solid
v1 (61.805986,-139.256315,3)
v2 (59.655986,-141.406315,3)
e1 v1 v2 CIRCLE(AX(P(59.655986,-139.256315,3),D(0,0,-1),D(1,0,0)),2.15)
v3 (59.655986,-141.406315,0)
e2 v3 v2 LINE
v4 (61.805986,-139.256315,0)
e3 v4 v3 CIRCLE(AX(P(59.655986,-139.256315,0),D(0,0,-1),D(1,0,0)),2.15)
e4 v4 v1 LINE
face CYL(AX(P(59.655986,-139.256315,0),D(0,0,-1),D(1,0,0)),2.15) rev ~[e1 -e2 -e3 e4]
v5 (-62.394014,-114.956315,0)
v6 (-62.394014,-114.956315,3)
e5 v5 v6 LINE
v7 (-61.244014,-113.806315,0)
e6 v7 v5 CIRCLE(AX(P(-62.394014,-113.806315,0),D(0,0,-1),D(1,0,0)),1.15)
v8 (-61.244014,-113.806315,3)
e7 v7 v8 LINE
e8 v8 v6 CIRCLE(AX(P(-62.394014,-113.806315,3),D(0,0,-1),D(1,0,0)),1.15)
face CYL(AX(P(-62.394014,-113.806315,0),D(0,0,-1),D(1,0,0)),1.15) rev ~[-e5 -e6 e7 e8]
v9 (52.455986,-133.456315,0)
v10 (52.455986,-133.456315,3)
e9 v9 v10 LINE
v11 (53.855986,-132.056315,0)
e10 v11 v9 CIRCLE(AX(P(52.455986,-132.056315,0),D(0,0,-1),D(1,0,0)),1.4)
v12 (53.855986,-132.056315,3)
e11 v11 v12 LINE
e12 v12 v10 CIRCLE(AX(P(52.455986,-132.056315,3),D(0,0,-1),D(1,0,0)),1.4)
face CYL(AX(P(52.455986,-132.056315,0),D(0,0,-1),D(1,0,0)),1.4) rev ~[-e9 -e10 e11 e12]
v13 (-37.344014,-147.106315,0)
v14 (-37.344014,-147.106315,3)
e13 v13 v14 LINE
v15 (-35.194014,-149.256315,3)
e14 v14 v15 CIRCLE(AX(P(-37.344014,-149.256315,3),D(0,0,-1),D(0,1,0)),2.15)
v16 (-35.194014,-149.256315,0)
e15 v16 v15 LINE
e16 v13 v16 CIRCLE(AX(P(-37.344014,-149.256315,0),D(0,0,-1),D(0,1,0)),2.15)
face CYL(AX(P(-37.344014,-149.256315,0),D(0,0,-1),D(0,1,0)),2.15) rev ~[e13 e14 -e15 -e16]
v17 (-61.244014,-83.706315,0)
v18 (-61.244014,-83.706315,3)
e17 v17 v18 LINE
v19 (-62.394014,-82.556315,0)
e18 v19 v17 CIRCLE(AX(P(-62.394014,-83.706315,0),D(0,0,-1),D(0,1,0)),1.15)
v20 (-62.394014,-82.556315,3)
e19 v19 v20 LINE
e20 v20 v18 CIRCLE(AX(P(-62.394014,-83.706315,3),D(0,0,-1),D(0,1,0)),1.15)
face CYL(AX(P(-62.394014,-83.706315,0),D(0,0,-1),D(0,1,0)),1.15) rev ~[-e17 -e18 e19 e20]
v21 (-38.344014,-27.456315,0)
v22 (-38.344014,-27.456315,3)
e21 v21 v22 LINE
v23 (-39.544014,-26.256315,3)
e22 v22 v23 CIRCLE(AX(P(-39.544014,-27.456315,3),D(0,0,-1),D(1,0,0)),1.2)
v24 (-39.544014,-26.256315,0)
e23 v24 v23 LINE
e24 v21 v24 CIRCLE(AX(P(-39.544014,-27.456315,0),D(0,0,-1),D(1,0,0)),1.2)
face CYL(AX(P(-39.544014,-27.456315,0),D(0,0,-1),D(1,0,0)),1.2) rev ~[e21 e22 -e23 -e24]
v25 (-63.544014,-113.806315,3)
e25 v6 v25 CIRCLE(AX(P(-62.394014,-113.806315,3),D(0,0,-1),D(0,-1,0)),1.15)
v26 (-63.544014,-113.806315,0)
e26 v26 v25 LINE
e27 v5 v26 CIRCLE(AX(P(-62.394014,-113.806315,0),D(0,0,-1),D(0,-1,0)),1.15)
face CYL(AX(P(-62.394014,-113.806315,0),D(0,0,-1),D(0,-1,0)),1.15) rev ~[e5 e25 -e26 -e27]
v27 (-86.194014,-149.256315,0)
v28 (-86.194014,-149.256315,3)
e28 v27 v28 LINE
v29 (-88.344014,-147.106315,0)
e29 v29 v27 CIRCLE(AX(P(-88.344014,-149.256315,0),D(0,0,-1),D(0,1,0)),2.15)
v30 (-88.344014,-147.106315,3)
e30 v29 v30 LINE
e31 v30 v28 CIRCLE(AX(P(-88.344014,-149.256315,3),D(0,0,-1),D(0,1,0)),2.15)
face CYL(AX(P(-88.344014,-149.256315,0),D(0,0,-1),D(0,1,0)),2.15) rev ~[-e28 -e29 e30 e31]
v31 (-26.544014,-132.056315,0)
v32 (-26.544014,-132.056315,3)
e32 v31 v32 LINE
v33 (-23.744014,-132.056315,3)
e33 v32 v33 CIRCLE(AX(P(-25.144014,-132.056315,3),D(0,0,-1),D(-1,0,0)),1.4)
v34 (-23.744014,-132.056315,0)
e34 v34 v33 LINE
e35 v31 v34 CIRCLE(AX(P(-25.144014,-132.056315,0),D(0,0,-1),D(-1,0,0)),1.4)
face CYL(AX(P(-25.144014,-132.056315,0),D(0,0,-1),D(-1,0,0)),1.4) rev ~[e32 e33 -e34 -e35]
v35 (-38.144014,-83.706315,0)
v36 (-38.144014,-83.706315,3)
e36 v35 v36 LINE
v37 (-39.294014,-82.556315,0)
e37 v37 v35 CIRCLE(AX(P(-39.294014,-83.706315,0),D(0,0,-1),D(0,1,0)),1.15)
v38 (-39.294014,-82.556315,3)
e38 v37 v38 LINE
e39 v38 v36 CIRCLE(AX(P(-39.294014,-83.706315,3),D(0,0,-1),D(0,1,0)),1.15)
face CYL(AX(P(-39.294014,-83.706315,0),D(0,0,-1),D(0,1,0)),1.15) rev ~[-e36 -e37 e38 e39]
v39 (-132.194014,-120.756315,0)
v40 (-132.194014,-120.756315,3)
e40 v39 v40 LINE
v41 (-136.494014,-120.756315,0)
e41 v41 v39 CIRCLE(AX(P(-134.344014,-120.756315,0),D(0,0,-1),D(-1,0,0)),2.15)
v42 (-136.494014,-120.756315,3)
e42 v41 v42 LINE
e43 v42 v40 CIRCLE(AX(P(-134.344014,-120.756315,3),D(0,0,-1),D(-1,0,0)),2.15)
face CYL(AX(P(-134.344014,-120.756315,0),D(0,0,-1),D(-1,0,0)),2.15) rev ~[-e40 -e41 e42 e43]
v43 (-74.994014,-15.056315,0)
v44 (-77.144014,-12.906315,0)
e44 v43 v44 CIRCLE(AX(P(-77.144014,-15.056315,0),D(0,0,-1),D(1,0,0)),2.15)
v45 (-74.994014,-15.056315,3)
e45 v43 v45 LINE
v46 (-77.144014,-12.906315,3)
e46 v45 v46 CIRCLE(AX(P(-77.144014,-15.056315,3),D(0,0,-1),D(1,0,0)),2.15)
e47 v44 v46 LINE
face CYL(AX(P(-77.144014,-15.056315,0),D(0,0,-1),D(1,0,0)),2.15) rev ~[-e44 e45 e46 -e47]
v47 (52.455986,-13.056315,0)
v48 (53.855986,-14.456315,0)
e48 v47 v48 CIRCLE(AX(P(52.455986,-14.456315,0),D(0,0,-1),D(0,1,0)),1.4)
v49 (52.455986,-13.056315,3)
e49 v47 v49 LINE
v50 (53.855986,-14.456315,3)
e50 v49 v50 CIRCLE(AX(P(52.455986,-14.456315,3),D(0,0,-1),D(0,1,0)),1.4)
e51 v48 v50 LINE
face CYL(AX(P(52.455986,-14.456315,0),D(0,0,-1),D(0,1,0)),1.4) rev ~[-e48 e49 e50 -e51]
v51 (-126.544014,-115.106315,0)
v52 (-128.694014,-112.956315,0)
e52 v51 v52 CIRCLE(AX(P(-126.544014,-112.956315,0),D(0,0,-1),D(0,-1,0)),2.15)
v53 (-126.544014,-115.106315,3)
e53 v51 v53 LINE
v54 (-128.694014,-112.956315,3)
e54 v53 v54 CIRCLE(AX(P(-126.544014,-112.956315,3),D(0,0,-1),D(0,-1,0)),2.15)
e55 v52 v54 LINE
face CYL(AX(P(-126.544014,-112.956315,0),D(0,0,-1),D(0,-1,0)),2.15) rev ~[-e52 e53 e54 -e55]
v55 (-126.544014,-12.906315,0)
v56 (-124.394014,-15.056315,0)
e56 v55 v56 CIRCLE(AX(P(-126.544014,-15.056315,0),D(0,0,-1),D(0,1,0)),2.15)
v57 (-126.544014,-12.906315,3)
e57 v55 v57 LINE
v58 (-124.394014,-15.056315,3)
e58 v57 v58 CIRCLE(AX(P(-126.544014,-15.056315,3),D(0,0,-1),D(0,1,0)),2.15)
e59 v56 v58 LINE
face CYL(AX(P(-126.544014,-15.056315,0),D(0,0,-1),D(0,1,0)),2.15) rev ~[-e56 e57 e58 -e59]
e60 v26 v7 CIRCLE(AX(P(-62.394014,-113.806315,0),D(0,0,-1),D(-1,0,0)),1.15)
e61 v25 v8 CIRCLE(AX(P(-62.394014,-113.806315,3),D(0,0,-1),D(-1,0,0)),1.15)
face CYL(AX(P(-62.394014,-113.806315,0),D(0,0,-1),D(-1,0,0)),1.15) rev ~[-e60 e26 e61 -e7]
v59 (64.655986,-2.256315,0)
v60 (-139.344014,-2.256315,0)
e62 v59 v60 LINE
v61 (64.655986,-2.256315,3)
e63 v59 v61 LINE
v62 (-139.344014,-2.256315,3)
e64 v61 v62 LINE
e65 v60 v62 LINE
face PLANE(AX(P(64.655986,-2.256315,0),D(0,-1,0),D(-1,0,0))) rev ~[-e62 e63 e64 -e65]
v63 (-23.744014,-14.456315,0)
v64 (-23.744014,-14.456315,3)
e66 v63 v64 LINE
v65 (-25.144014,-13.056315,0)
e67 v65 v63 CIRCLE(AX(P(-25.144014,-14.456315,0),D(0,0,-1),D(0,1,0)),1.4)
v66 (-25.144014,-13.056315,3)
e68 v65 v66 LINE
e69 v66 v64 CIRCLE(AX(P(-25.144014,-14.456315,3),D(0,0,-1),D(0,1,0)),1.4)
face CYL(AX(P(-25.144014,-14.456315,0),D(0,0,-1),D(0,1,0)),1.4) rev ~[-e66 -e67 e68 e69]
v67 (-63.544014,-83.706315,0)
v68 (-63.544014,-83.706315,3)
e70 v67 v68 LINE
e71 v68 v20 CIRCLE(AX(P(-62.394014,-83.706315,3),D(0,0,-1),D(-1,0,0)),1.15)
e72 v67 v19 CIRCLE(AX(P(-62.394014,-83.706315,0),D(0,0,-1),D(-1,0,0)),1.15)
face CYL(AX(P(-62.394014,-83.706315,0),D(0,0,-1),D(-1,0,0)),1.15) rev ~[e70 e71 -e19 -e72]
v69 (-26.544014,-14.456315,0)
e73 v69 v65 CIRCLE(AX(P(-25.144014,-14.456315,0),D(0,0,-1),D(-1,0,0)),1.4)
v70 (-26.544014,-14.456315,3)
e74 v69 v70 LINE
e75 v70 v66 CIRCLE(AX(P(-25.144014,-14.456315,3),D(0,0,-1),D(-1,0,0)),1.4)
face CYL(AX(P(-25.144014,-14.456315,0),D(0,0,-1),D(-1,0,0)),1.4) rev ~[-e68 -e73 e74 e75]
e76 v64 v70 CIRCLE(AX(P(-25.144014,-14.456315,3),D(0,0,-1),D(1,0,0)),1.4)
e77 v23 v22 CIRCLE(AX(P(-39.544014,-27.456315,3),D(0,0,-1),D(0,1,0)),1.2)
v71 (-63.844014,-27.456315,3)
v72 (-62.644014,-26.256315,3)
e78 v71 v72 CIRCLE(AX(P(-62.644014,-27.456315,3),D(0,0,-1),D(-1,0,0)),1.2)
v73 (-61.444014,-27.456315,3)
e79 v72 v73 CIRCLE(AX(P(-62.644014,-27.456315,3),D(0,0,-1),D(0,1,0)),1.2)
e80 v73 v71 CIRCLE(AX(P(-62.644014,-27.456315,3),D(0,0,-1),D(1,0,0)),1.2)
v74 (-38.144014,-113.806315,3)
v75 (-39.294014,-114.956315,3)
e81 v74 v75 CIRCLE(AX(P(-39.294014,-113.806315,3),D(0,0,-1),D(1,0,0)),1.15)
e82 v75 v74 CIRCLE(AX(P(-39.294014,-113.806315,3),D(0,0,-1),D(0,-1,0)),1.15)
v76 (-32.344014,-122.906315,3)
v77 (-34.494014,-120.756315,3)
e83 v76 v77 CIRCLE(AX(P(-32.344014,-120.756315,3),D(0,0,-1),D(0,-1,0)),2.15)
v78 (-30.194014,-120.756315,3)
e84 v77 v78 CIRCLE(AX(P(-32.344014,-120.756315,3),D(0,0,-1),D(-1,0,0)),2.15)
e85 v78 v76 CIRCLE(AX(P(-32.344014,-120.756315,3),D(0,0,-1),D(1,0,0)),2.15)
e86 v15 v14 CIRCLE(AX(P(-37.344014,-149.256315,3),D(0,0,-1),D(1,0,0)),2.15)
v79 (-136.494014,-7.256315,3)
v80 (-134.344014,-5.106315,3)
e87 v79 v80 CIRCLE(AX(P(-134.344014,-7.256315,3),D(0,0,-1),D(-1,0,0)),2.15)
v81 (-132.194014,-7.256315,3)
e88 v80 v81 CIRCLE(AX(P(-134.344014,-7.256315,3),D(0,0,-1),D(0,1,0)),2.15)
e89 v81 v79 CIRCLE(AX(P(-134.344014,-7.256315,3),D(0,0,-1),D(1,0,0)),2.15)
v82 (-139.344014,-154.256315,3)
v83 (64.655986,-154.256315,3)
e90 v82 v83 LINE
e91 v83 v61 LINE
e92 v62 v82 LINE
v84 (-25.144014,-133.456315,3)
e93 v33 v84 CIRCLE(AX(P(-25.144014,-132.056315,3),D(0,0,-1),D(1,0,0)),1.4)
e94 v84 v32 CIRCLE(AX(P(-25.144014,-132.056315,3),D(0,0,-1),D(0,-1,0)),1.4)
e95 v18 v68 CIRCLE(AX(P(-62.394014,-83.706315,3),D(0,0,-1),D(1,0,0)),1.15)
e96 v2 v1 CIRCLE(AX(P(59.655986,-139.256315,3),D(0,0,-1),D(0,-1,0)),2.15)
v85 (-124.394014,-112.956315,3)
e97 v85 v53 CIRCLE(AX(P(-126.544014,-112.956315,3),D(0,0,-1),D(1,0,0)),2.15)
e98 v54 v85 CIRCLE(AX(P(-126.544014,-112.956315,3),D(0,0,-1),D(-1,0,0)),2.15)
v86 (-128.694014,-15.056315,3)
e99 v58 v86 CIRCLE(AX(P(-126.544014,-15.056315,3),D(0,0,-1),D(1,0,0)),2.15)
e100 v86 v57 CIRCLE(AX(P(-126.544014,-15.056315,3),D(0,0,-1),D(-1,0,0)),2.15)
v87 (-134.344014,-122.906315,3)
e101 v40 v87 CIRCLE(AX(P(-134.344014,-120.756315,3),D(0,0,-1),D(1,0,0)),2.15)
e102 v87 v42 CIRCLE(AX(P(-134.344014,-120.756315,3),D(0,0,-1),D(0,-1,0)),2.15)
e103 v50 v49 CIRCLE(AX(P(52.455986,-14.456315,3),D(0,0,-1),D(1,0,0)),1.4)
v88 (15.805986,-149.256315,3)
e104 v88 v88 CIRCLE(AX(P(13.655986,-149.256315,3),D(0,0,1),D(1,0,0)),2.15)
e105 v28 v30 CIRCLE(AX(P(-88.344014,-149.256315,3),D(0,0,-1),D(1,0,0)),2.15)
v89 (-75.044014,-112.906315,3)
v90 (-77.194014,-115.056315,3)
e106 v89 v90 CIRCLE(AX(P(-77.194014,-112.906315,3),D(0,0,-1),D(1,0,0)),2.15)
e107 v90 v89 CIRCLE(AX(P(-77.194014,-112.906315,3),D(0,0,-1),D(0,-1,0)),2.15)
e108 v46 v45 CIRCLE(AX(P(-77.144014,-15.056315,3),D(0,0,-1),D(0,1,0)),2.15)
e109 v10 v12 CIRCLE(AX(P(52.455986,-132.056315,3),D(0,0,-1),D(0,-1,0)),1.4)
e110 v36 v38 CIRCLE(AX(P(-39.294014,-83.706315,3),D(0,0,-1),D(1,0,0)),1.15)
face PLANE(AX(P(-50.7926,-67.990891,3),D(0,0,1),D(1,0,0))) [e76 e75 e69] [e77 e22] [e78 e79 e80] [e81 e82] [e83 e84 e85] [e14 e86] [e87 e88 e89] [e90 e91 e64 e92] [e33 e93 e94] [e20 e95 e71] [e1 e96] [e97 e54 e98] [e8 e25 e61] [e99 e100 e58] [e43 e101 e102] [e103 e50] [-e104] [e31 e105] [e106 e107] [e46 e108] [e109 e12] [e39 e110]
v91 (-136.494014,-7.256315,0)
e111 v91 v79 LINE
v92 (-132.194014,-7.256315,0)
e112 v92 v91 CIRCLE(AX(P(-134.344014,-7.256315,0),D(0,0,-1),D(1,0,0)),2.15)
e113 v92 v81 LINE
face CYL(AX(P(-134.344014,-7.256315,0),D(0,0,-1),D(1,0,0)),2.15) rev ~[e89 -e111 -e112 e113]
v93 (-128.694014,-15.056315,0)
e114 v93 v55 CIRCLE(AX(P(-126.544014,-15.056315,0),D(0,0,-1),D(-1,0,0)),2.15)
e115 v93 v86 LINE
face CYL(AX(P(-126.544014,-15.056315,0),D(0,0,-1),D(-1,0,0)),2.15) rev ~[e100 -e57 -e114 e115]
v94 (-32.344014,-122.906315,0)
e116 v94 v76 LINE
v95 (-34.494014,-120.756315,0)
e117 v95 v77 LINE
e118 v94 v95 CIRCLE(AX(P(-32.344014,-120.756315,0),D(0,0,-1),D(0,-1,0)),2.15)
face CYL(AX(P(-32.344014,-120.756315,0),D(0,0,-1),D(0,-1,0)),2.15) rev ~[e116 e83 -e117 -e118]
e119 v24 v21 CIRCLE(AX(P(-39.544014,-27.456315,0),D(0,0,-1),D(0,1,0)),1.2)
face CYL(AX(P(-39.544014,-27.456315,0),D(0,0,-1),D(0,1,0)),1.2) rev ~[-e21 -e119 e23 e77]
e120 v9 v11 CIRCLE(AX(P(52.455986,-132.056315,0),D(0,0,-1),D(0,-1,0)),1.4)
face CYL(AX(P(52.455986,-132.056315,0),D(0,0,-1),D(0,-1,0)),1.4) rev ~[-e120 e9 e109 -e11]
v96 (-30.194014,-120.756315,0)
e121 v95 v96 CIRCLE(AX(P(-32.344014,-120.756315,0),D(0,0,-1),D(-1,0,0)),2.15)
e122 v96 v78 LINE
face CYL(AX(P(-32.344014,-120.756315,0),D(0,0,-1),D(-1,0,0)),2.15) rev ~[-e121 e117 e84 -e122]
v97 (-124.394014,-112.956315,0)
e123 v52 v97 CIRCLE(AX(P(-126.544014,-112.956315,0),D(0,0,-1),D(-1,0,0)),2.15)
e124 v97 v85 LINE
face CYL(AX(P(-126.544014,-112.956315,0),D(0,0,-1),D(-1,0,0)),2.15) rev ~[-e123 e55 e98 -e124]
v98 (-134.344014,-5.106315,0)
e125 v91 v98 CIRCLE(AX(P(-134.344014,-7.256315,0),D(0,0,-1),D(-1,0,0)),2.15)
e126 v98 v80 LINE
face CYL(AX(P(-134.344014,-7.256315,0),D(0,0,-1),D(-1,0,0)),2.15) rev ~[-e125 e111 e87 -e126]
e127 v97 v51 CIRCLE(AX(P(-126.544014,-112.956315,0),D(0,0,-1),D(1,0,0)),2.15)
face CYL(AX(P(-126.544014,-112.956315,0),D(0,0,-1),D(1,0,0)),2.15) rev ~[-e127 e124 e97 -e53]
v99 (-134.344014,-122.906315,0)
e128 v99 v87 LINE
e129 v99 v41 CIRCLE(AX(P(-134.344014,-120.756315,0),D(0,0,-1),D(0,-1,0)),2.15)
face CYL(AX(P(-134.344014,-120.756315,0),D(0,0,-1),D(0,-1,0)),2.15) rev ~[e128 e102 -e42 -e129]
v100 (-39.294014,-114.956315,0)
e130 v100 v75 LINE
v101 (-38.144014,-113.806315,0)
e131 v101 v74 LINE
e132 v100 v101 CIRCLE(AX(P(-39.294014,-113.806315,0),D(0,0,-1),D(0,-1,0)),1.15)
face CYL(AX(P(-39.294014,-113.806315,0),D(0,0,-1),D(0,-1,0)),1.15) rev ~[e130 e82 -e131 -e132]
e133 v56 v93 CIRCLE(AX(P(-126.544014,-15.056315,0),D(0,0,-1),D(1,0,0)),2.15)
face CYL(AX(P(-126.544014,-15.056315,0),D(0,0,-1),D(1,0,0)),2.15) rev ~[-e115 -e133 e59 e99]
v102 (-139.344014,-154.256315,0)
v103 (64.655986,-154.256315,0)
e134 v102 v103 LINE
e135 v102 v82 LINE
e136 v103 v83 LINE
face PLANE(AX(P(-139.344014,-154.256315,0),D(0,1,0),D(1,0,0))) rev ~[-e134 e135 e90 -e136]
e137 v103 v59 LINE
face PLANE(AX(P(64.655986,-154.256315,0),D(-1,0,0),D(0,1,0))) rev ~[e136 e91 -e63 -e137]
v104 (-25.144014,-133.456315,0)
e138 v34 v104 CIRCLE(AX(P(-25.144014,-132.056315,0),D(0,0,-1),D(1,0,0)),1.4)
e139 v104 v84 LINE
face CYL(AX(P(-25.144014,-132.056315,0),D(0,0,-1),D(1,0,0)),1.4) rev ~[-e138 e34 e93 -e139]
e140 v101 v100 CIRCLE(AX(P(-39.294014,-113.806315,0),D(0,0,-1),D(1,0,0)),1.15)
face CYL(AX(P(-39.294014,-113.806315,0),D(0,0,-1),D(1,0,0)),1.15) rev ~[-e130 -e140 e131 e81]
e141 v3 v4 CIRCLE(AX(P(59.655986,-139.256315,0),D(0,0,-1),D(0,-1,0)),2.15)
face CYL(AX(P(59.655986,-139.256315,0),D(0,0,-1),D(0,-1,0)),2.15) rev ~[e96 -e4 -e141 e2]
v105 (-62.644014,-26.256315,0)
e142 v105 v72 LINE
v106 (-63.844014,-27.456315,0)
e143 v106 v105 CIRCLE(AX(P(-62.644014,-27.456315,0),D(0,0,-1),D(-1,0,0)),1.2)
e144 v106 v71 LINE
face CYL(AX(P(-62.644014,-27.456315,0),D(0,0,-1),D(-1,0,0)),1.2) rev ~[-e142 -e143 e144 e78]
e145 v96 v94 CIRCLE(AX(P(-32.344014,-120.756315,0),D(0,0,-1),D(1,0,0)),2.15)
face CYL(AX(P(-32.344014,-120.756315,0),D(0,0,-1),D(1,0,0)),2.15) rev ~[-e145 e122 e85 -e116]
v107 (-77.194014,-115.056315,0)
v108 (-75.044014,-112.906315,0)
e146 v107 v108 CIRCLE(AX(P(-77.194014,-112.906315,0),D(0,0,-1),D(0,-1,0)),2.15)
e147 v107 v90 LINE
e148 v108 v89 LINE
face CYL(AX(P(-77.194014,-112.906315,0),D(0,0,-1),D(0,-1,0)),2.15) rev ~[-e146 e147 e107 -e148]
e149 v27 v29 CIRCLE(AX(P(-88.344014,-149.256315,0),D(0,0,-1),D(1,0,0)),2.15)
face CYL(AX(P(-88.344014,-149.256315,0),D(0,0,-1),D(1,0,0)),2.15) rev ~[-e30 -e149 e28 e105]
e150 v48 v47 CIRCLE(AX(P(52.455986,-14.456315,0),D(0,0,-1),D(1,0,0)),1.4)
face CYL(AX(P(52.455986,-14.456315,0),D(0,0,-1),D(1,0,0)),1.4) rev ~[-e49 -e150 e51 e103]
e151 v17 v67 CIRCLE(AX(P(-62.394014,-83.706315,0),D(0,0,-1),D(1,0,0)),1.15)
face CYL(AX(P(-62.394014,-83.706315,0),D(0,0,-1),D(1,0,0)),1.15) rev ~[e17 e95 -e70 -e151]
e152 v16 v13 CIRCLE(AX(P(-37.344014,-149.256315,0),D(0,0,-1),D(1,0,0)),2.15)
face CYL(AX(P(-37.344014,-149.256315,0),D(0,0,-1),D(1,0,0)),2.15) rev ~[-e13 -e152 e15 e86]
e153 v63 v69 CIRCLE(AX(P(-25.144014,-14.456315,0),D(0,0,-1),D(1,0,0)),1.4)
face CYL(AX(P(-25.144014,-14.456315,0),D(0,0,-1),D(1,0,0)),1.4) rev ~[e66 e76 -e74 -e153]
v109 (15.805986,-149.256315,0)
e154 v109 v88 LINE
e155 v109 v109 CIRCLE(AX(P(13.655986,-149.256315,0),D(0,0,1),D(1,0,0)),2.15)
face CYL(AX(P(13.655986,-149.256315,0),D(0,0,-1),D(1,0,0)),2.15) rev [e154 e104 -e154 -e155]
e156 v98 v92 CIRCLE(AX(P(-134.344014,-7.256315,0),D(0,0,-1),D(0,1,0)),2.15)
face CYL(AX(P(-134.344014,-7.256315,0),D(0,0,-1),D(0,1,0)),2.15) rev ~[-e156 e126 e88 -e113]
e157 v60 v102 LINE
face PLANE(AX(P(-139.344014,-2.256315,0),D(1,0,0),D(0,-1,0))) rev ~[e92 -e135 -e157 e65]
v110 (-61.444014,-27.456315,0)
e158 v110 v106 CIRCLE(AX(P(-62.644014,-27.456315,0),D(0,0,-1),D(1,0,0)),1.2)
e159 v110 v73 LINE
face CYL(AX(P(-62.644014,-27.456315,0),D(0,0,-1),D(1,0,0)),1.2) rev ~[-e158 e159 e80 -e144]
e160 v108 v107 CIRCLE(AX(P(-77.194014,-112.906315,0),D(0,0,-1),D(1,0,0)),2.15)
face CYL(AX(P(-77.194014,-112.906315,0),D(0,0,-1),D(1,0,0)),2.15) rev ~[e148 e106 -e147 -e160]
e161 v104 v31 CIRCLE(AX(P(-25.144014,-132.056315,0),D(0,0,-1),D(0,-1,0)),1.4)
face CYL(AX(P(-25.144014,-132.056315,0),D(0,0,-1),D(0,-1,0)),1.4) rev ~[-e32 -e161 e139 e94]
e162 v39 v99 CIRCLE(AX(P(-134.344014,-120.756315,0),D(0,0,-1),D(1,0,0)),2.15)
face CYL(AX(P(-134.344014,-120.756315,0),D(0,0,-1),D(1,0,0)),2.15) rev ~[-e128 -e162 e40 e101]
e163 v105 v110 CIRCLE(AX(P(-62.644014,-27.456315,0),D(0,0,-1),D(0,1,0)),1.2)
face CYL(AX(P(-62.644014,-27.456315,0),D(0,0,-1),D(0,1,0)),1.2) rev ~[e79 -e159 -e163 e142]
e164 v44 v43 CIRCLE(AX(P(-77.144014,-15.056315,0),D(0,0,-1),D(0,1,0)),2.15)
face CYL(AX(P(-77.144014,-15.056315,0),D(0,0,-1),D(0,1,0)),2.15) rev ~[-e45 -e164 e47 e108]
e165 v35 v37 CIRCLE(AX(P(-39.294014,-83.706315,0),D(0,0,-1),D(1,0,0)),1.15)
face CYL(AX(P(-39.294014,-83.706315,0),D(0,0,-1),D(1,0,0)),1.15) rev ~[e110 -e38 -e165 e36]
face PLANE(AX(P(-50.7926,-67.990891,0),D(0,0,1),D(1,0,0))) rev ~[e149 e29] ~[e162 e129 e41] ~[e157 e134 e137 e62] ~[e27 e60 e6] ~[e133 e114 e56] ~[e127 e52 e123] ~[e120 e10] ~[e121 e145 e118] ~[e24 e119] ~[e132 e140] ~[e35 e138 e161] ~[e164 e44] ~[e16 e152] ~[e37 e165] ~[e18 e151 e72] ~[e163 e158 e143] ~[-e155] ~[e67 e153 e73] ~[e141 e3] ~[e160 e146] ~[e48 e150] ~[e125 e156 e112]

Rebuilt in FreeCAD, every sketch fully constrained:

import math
import FreeCAD as App
import Part
import Sketcher
Q = App.Units.Quantity


def add_polygon(sketch, points):
    """Adds a closed chain of lines whose ends are joined by coincident constraints."""
    first, n = sketch.GeometryCount, len(points)
    for a, b in zip(points, points[1:] + points[:1]):
        sketch.addGeometry(Part.LineSegment(App.Vector(*a, 0), App.Vector(*b, 0)), False)
    for i in range(n):
        sketch.addConstraint(Sketcher.Constraint("Coincident", first + i, 2, first + (i + 1) % n, 1))

doc = App.newDocument("Part")
body = doc.addObject("PartDesign::Body", "Body")

# Sketch on XY plane
sketch1 = body.newObject("Sketcher::SketchObject", "Sketch")
sketch1.AttachmentSupport = (doc.getObject("XY_Plane"), [""])
sketch1.MapMode = "FlatFace"
add_polygon(sketch1, [(-139.3, -154.3), (64.7, -154.3), (64.7, -2.3), (-139.3, -2.3)])  # lines 0-3
sketch1.addGeometry(Part.ArcOfCircle(Part.Circle(App.Vector(-134.3, -7.3, 0), App.Vector(0, 0, 1), 2.1), math.radians(180), math.radians(360)), False)  # 4
sketch1.addGeometry(Part.ArcOfCircle(Part.Circle(App.Vector(-134.3, -7.3, 0), App.Vector(0, 0, 1), 2.1), math.radians(90), math.radians(180)), False)  # 5
sketch1.addGeometry(Part.ArcOfCircle(Part.Circle(App.Vector(-134.3, -7.3, 0), App.Vector(0, 0, 1), 2.1), math.radians(0), math.radians(90)), False)  # 6
sketch1.addGeometry(Part.ArcOfCircle(Part.Circle(App.Vector(-88.3, -149.3, 0), App.Vector(0, 0, 1), 2.1), math.radians(0), math.radians(90)), False)  # 7
sketch1.addGeometry(Part.ArcOfCircle(Part.Circle(App.Vector(-88.3, -149.3, 0), App.Vector(0, 0, 1), 2.1), math.radians(90), math.radians(360)), False)  # 8
sketch1.addGeometry(Part.ArcOfCircle(Part.Circle(App.Vector(-134.3, -120.8, 0), App.Vector(0, 0, 1), 2.1), math.radians(0), math.radians(180)), False)  # 9
sketch1.addGeometry(Part.ArcOfCircle(Part.Circle(App.Vector(-134.3, -120.8, 0), App.Vector(0, 0, 1), 2.1), math.radians(-90), math.radians(0)), False)  # 10
sketch1.addGeometry(Part.ArcOfCircle(Part.Circle(App.Vector(-134.3, -120.8, 0), App.Vector(0, 0, 1), 2.1), math.radians(180), math.radians(270)), False)  # 11
sketch1.addGeometry(Part.ArcOfCircle(Part.Circle(App.Vector(-126.5, -113, 0), App.Vector(0, 0, 1), 2.1), math.radians(0), math.radians(180)), False)  # 12
sketch1.addGeometry(Part.ArcOfCircle(Part.Circle(App.Vector(-126.5, -113, 0), App.Vector(0, 0, 1), 2.1), math.radians(-90), math.radians(0)), False)  # 13
sketch1.addGeometry(Part.ArcOfCircle(Part.Circle(App.Vector(-126.5, -113, 0), App.Vector(0, 0, 1), 2.1), math.radians(180), math.radians(270)), False)  # 14
sketch1.addGeometry(Part.ArcOfCircle(Part.Circle(App.Vector(-77.2, -112.9, 0), App.Vector(0, 0, 1), 2.1), math.radians(0), math.radians(270)), False)  # 15
sketch1.addGeometry(Part.ArcOfCircle(Part.Circle(App.Vector(-77.2, -112.9, 0), App.Vector(0, 0, 1), 2.1), math.radians(-90), math.radians(0)), False)  # 16
sketch1.addGeometry(Part.ArcOfCircle(Part.Circle(App.Vector(-62.4, -113.8, 0), App.Vector(0, 0, 1), 1.1), math.radians(0), math.radians(180)), False)  # 17
sketch1.addGeometry(Part.ArcOfCircle(Part.Circle(App.Vector(-62.4, -113.8, 0), App.Vector(0, 0, 1), 1.1), math.radians(-90), math.radians(0)), False)  # 18
sketch1.addGeometry(Part.ArcOfCircle(Part.Circle(App.Vector(-62.4, -113.8, 0), App.Vector(0, 0, 1), 1.1), math.radians(180), math.radians(270)), False)  # 19
sketch1.addGeometry(Part.ArcOfCircle(Part.Circle(App.Vector(-39.3, -113.8, 0), App.Vector(0, 0, 1), 1.1), math.radians(0), math.radians(270)), False)  # 20
sketch1.addGeometry(Part.ArcOfCircle(Part.Circle(App.Vector(-39.3, -113.8, 0), App.Vector(0, 0, 1), 1.1), math.radians(-90), math.radians(0)), False)  # 21
sketch1.addGeometry(Part.ArcOfCircle(Part.Circle(App.Vector(-62.4, -83.7, 0), App.Vector(0, 0, 1), 1.1), math.radians(0), math.radians(90)), False)  # 22
sketch1.addGeometry(Part.ArcOfCircle(Part.Circle(App.Vector(-62.4, -83.7, 0), App.Vector(0, 0, 1), 1.1), math.radians(180), math.radians(360)), False)  # 23
sketch1.addGeometry(Part.ArcOfCircle(Part.Circle(App.Vector(-62.4, -83.7, 0), App.Vector(0, 0, 1), 1.1), math.radians(90), math.radians(180)), False)  # 24
sketch1.addGeometry(Part.ArcOfCircle(Part.Circle(App.Vector(-39.3, -83.7, 0), App.Vector(0, 0, 1), 1.1), math.radians(90), math.radians(360)), False)  # 25
sketch1.addGeometry(Part.ArcOfCircle(Part.Circle(App.Vector(-39.3, -83.7, 0), App.Vector(0, 0, 1), 1.1), math.radians(0), math.radians(90)), False)  # 26
sketch1.addGeometry(Part.ArcOfCircle(Part.Circle(App.Vector(-37.3, -149.3, 0), App.Vector(0, 0, 1), 2.1), math.radians(0), math.radians(90)), False)  # 27
sketch1.addGeometry(Part.ArcOfCircle(Part.Circle(App.Vector(-37.3, -149.3, 0), App.Vector(0, 0, 1), 2.1), math.radians(90), math.radians(360)), False)  # 28
sketch1.addGeometry(Part.ArcOfCircle(Part.Circle(App.Vector(-25.1, -132.1, 0), App.Vector(0, 0, 1), 1.4), math.radians(180), math.radians(270)), False)  # 29
sketch1.addGeometry(Part.ArcOfCircle(Part.Circle(App.Vector(-25.1, -132.1, 0), App.Vector(0, 0, 1), 1.4), math.radians(0), math.radians(180)), False)  # 30
sketch1.addGeometry(Part.ArcOfCircle(Part.Circle(App.Vector(-25.1, -132.1, 0), App.Vector(0, 0, 1), 1.4), math.radians(-90), math.radians(0)), False)  # 31
sketch1.addGeometry(Part.ArcOfCircle(Part.Circle(App.Vector(-32.3, -120.8, 0), App.Vector(0, 0, 1), 2.1), math.radians(0), math.radians(180)), False)  # 32
sketch1.addGeometry(Part.ArcOfCircle(Part.Circle(App.Vector(-32.3, -120.8, 0), App.Vector(0, 0, 1), 2.1), math.radians(-90), math.radians(0)), False)  # 33
sketch1.addGeometry(Part.ArcOfCircle(Part.Circle(App.Vector(-32.3, -120.8, 0), App.Vector(0, 0, 1), 2.1), math.radians(180), math.radians(270)), False)  # 34
sketch1.addGeometry(Part.Circle(App.Vector(13.7, -149.3, 0), App.Vector(0, 0, 1), 2.1), False)  # 35
sketch1.addGeometry(Part.ArcOfCircle(Part.Circle(App.Vector(59.7, -139.3, 0), App.Vector(0, 0, 1), 2.1), math.radians(0), math.radians(270)), False)  # 36
sketch1.addGeometry(Part.ArcOfCircle(Part.Circle(App.Vector(59.7, -139.3, 0), App.Vector(0, 0, 1), 2.1), math.radians(-90), math.radians(0)), False)  # 37
sketch1.addGeometry(Part.ArcOfCircle(Part.Circle(App.Vector(52.5, -132.1, 0), App.Vector(0, 0, 1), 1.4), math.radians(-90), math.radians(0)), False)  # 38
sketch1.addGeometry(Part.ArcOfCircle(Part.Circle(App.Vector(52.5, -132.1, 0), App.Vector(0, 0, 1), 1.4), math.radians(0), math.radians(270)), False)  # 39
sketch1.addGeometry(Part.ArcOfCircle(Part.Circle(App.Vector(-126.5, -15.1, 0), App.Vector(0, 0, 1), 2.1), math.radians(0), math.radians(90)), False)  # 40
sketch1.addGeometry(Part.ArcOfCircle(Part.Circle(App.Vector(-126.5, -15.1, 0), App.Vector(0, 0, 1), 2.1), math.radians(180), math.radians(360)), False)  # 41
sketch1.addGeometry(Part.ArcOfCircle(Part.Circle(App.Vector(-126.5, -15.1, 0), App.Vector(0, 0, 1), 2.1), math.radians(90), math.radians(180)), False)  # 42
sketch1.addGeometry(Part.ArcOfCircle(Part.Circle(App.Vector(-62.6, -27.5, 0), App.Vector(0, 0, 1), 1.2), math.radians(90), math.radians(180)), False)  # 43
sketch1.addGeometry(Part.ArcOfCircle(Part.Circle(App.Vector(-62.6, -27.5, 0), App.Vector(0, 0, 1), 1.2), math.radians(0), math.radians(90)), False)  # 44
sketch1.addGeometry(Part.ArcOfCircle(Part.Circle(App.Vector(-62.6, -27.5, 0), App.Vector(0, 0, 1), 1.2), math.radians(180), math.radians(360)), False)  # 45
sketch1.addGeometry(Part.ArcOfCircle(Part.Circle(App.Vector(-77.1, -15.1, 0), App.Vector(0, 0, 1), 2.1), math.radians(90), math.radians(360)), False)  # 46
sketch1.addGeometry(Part.ArcOfCircle(Part.Circle(App.Vector(-77.1, -15.1, 0), App.Vector(0, 0, 1), 2.1), math.radians(0), math.radians(90)), False)  # 47
sketch1.addGeometry(Part.ArcOfCircle(Part.Circle(App.Vector(-39.5, -27.5, 0), App.Vector(0, 0, 1), 1.2), math.radians(90), math.radians(360)), False)  # 48
sketch1.addGeometry(Part.ArcOfCircle(Part.Circle(App.Vector(-39.5, -27.5, 0), App.Vector(0, 0, 1), 1.2), math.radians(0), math.radians(90)), False)  # 49
sketch1.addGeometry(Part.ArcOfCircle(Part.Circle(App.Vector(-25.1, -14.5, 0), App.Vector(0, 0, 1), 1.4), math.radians(90), math.radians(180)), False)  # 50
sketch1.addGeometry(Part.ArcOfCircle(Part.Circle(App.Vector(-25.1, -14.5, 0), App.Vector(0, 0, 1), 1.4), math.radians(0), math.radians(90)), False)  # 51
sketch1.addGeometry(Part.ArcOfCircle(Part.Circle(App.Vector(-25.1, -14.5, 0), App.Vector(0, 0, 1), 1.4), math.radians(180), math.radians(360)), False)  # 52
sketch1.addGeometry(Part.ArcOfCircle(Part.Circle(App.Vector(52.5, -14.5, 0), App.Vector(0, 0, 1), 1.4), math.radians(0), math.radians(90)), False)  # 53
sketch1.addGeometry(Part.ArcOfCircle(Part.Circle(App.Vector(52.5, -14.5, 0), App.Vector(0, 0, 1), 1.4), math.radians(90), math.radians(360)), False)  # 54
sketch1.addConstraint(Sketcher.Constraint("Tangent", 4, 1, 5, 2))
sketch1.addConstraint(Sketcher.Constraint("Tangent", 5, 1, 6, 2))
sketch1.addConstraint(Sketcher.Constraint("Tangent", 6, 1, 4, 2))
sketch1.addConstraint(Sketcher.Constraint("Tangent", 7, 1, 8, 2))
sketch1.addConstraint(Sketcher.Constraint("Coincident", 8, 1, 7, 2))
sketch1.addConstraint(Sketcher.Constraint("Tangent", 9, 1, 10, 2))
sketch1.addConstraint(Sketcher.Constraint("Tangent", 10, 1, 11, 2))
sketch1.addConstraint(Sketcher.Constraint("Tangent", 11, 1, 9, 2))
sketch1.addConstraint(Sketcher.Constraint("Tangent", 12, 1, 13, 2))
sketch1.addConstraint(Sketcher.Constraint("Tangent", 13, 1, 14, 2))
sketch1.addConstraint(Sketcher.Constraint("Tangent", 14, 1, 12, 2))
sketch1.addConstraint(Sketcher.Constraint("Tangent", 15, 1, 16, 2))
sketch1.addConstraint(Sketcher.Constraint("Coincident", 16, 1, 15, 2))
sketch1.addConstraint(Sketcher.Constraint("Tangent", 17, 1, 18, 2))
sketch1.addConstraint(Sketcher.Constraint("Tangent", 18, 1, 19, 2))
sketch1.addConstraint(Sketcher.Constraint("Tangent", 19, 1, 17, 2))
sketch1.addConstraint(Sketcher.Constraint("Tangent", 20, 1, 21, 2))
sketch1.addConstraint(Sketcher.Constraint("Coincident", 21, 1, 20, 2))
sketch1.addConstraint(Sketcher.Constraint("Tangent", 22, 1, 23, 2))
sketch1.addConstraint(Sketcher.Constraint("Tangent", 23, 1, 24, 2))
sketch1.addConstraint(Sketcher.Constraint("Tangent", 24, 1, 22, 2))
sketch1.addConstraint(Sketcher.Constraint("Tangent", 25, 1, 26, 2))
sketch1.addConstraint(Sketcher.Constraint("Coincident", 26, 1, 25, 2))
sketch1.addConstraint(Sketcher.Constraint("Tangent", 27, 1, 28, 2))
sketch1.addConstraint(Sketcher.Constraint("Coincident", 28, 1, 27, 2))
sketch1.addConstraint(Sketcher.Constraint("Tangent", 29, 1, 30, 2))
sketch1.addConstraint(Sketcher.Constraint("Tangent", 30, 1, 31, 2))
sketch1.addConstraint(Sketcher.Constraint("Tangent", 31, 1, 29, 2))
sketch1.addConstraint(Sketcher.Constraint("Tangent", 32, 1, 33, 2))
sketch1.addConstraint(Sketcher.Constraint("Tangent", 33, 1, 34, 2))
sketch1.addConstraint(Sketcher.Constraint("Tangent", 34, 1, 32, 2))
sketch1.addConstraint(Sketcher.Constraint("Tangent", 36, 1, 37, 2))
sketch1.addConstraint(Sketcher.Constraint("Coincident", 37, 1, 36, 2))
sketch1.addConstraint(Sketcher.Constraint("Tangent", 38, 1, 39, 2))
sketch1.addConstraint(Sketcher.Constraint("Coincident", 39, 1, 38, 2))
sketch1.addConstraint(Sketcher.Constraint("Tangent", 40, 1, 41, 2))
sketch1.addConstraint(Sketcher.Constraint("Tangent", 41, 1, 42, 2))
sketch1.addConstraint(Sketcher.Constraint("Tangent", 42, 1, 40, 2))
sketch1.addConstraint(Sketcher.Constraint("Tangent", 43, 1, 44, 2))
sketch1.addConstraint(Sketcher.Constraint("Tangent", 44, 1, 45, 2))
sketch1.addConstraint(Sketcher.Constraint("Tangent", 45, 1, 43, 2))
sketch1.addConstraint(Sketcher.Constraint("Tangent", 46, 1, 47, 2))
sketch1.addConstraint(Sketcher.Constraint("Coincident", 47, 1, 46, 2))
sketch1.addConstraint(Sketcher.Constraint("Tangent", 48, 1, 49, 2))
sketch1.addConstraint(Sketcher.Constraint("Coincident", 49, 1, 48, 2))
sketch1.addConstraint(Sketcher.Constraint("Tangent", 50, 1, 51, 2))
sketch1.addConstraint(Sketcher.Constraint("Tangent", 51, 1, 52, 2))
sketch1.addConstraint(Sketcher.Constraint("Tangent", 52, 1, 50, 2))
sketch1.addConstraint(Sketcher.Constraint("Tangent", 53, 1, 54, 2))
sketch1.addConstraint(Sketcher.Constraint("Coincident", 54, 1, 53, 2))
sketch1.addConstraint(Sketcher.Constraint("Horizontal", 0))
sketch1.addConstraint(Sketcher.Constraint("Vertical", 1))
sketch1.addConstraint(Sketcher.Constraint("Horizontal", 2))
sketch1.addConstraint(Sketcher.Constraint("Vertical", 3))
sketch1.addConstraint(Sketcher.Constraint("Equal", 6, 7))
sketch1.addConstraint(Sketcher.Constraint("Equal", 8, 9))
sketch1.addConstraint(Sketcher.Constraint("Equal", 11, 12))
sketch1.addConstraint(Sketcher.Constraint("Equal", 14, 15))
sketch1.addConstraint(Sketcher.Constraint("Equal", 19, 20))
sketch1.addConstraint(Sketcher.Constraint("Equal", 21, 22))
sketch1.addConstraint(Sketcher.Constraint("Equal", 24, 25))
sketch1.addConstraint(Sketcher.Constraint("Equal", 16, 27))
sketch1.addConstraint(Sketcher.Constraint("Equal", 28, 32))
sketch1.addConstraint(Sketcher.Constraint("Equal", 34, 35))
sketch1.addConstraint(Sketcher.Constraint("Equal", 35, 36))
sketch1.addConstraint(Sketcher.Constraint("Equal", 31, 38))
sketch1.addConstraint(Sketcher.Constraint("Equal", 37, 40))
sketch1.addConstraint(Sketcher.Constraint("Equal", 42, 46))
sketch1.addConstraint(Sketcher.Constraint("Equal", 45, 48))
sketch1.addConstraint(Sketcher.Constraint("Equal", 39, 50))
sketch1.addConstraint(Sketcher.Constraint("Equal", 52, 53))
sketch1.addConstraint(Sketcher.Constraint("Horizontal", 19, 3, 20, 3))
sketch1.addConstraint(Sketcher.Constraint("Horizontal", 24, 3, 25, 3))
sketch1.addConstraint(Sketcher.Constraint("Horizontal", 8, 3, 27, 3))
sketch1.addConstraint(Sketcher.Constraint("Horizontal", 11, 3, 32, 3))
sketch1.addConstraint(Sketcher.Constraint("Horizontal", 28, 3, 35, 3))
sketch1.addConstraint(Sketcher.Constraint("Horizontal", 31, 3, 38, 3))
sketch1.addConstraint(Sketcher.Constraint("Horizontal", 42, 3, 46, 3))
sketch1.addConstraint(Sketcher.Constraint("Horizontal", 45, 3, 48, 3))
sketch1.addConstraint(Sketcher.Constraint("Horizontal", 52, 3, 53, 3))
sketch1.addConstraint(Sketcher.Constraint("Horizontal", 6, 3, 4, 1))
sketch1.addConstraint(Sketcher.Constraint("Horizontal", 4, 1, 6, 1))
sketch1.addConstraint(Sketcher.Constraint("Horizontal", 35, 3, 7, 1))
sketch1.addConstraint(Sketcher.Constraint("Horizontal", 34, 3, 9, 1))
sketch1.addConstraint(Sketcher.Constraint("Horizontal", 9, 1, 11, 1))
sketch1.addConstraint(Sketcher.Constraint("Horizontal", 14, 3, 12, 1))
sketch1.addConstraint(Sketcher.Constraint("Horizontal", 12, 1, 14, 1))
sketch1.addConstraint(Sketcher.Constraint("Horizontal", 16, 3, 15, 1))
sketch1.addConstraint(Sketcher.Constraint("Horizontal", 21, 3, 17, 1))
sketch1.addConstraint(Sketcher.Constraint("Horizontal", 17, 1, 19, 1))
sketch1.addConstraint(Sketcher.Constraint("Horizontal", 19, 1, 20, 1))
sketch1.addConstraint(Sketcher.Constraint("Horizontal", 26, 3, 22, 1))
sketch1.addConstraint(Sketcher.Constraint("Horizontal", 22, 1, 23, 1))
sketch1.addConstraint(Sketcher.Constraint("Horizontal", 23, 1, 26, 1))
sketch1.addConstraint(Sketcher.Constraint("Horizontal", 7, 1, 27, 1))
sketch1.addConstraint(Sketcher.Constraint("Horizontal", 39, 3, 29, 1))
sketch1.addConstraint(Sketcher.Constraint("Horizontal", 29, 1, 30, 1))
sketch1.addConstraint(Sketcher.Constraint("Horizontal", 11, 1, 32, 1))
sketch1.addConstraint(Sketcher.Constraint("Horizontal", 32, 1, 34, 1))
sketch1.addConstraint(Sketcher.Constraint("Horizontal", 37, 3, 36, 1))
sketch1.addConstraint(Sketcher.Constraint("Horizontal", 30, 1, 39, 1))
sketch1.addConstraint(Sketcher.Constraint("Horizontal", 47, 3, 40, 1))
sketch1.addConstraint(Sketcher.Constraint("Horizontal", 40, 1, 41, 1))
sketch1.addConstraint(Sketcher.Constraint("Horizontal", 49, 3, 44, 1))
sketch1.addConstraint(Sketcher.Constraint("Horizontal", 44, 1, 45, 1))
sketch1.addConstraint(Sketcher.Constraint("Horizontal", 41, 1, 47, 1))
sketch1.addConstraint(Sketcher.Constraint("Horizontal", 45, 1, 49, 1))
sketch1.addConstraint(Sketcher.Constraint("Horizontal", 54, 3, 51, 1))
sketch1.addConstraint(Sketcher.Constraint("Horizontal", 51, 1, 52, 1))
sketch1.addConstraint(Sketcher.Constraint("Horizontal", 52, 1, 53, 1))
sketch1.addConstraint(Sketcher.Constraint("Vertical", 6, 3, 9, 3))
sketch1.addConstraint(Sketcher.Constraint("Vertical", 19, 3, 22, 3))
sketch1.addConstraint(Sketcher.Constraint("Vertical", 21, 3, 25, 3))
sketch1.addConstraint(Sketcher.Constraint("Vertical", 14, 3, 40, 3))
sketch1.addConstraint(Sketcher.Constraint("Vertical", 31, 3, 50, 3))
sketch1.addConstraint(Sketcher.Constraint("Vertical", 39, 3, 53, 3))
sketch1.addConstraint(Sketcher.Constraint("Vertical", 11, 3, 5, 1))
sketch1.addConstraint(Sketcher.Constraint("Vertical", 7, 3, 8, 1))
sketch1.addConstraint(Sketcher.Constraint("Vertical", 5, 1, 10, 1))
sketch1.addConstraint(Sketcher.Constraint("Vertical", 42, 3, 13, 1))
sketch1.addConstraint(Sketcher.Constraint("Vertical", 15, 3, 16, 1))
sketch1.addConstraint(Sketcher.Constraint("Vertical", 24, 3, 18, 1))
sketch1.addConstraint(Sketcher.Constraint("Vertical", 26, 3, 21, 1))
sketch1.addConstraint(Sketcher.Constraint("Vertical", 18, 1, 24, 1))
sketch1.addConstraint(Sketcher.Constraint("Vertical", 21, 1, 25, 1))
sketch1.addConstraint(Sketcher.Constraint("Vertical", 27, 3, 28, 1))
sketch1.addConstraint(Sketcher.Constraint("Vertical", 52, 3, 31, 1))
sketch1.addConstraint(Sketcher.Constraint("Vertical", 34, 3, 33, 1))
sketch1.addConstraint(Sketcher.Constraint("Vertical", 36, 3, 37, 1))
sketch1.addConstraint(Sketcher.Constraint("Vertical", 54, 3, 38, 1))
sketch1.addConstraint(Sketcher.Constraint("Vertical", 13, 1, 42, 1))
sketch1.addConstraint(Sketcher.Constraint("Vertical", 45, 3, 43, 1))
sketch1.addConstraint(Sketcher.Constraint("Vertical", 47, 3, 46, 1))
sketch1.addConstraint(Sketcher.Constraint("Vertical", 49, 3, 48, 1))
sketch1.addConstraint(Sketcher.Constraint("Vertical", 31, 1, 50, 1))
sketch1.addConstraint(Sketcher.Constraint("Vertical", 38, 1, 54, 1))
sketch1.addConstraint(Sketcher.Constraint("Diameter", 35, Q("4.3 mm")))
sketch1.addConstraint(Sketcher.Constraint("Radius", 29, Q("1.4 mm")))
sketch1.addConstraint(Sketcher.Constraint("Radius", 43, Q("1.2 mm")))
sketch1.addConstraint(Sketcher.Constraint("DistanceX", 0, 1, 0, 2, Q("204 mm")))
sketch1.addConstraint(Sketcher.Constraint("DistanceY", 1, 1, 1, 2, Q("152 mm")))
sketch1.addConstraint(Sketcher.Constraint("Radius", 17, Q("1.15 mm")))
sketch1.addConstraint(Sketcher.Constraint("DistanceX", 4, 3, -1, 1, Q("134.344014 mm")))
sketch1.addConstraint(Sketcher.Constraint("DistanceY", 4, 3, -1, 1, Q("7.256315 mm")))
sketch1.addConstraint(Sketcher.Constraint("DistanceX", 7, 3, -1, 1, Q("88.344014 mm")))
sketch1.addConstraint(Sketcher.Constraint("DistanceY", 7, 3, -1, 1, Q("149.256315 mm")))
sketch1.addConstraint(Sketcher.Constraint("DistanceY", 9, 3, -1, 1, Q("120.756315 mm")))
sketch1.addConstraint(Sketcher.Constraint("DistanceX", 12, 3, -1, 1, Q("126.544014 mm")))
sketch1.addConstraint(Sketcher.Constraint("DistanceY", 12, 3, -1, 1, Q("112.956315 mm")))
sketch1.addConstraint(Sketcher.Constraint("DistanceX", 15, 3, -1, 1, Q("77.194014 mm")))
sketch1.addConstraint(Sketcher.Constraint("DistanceY", 15, 3, -1, 1, Q("112.906315 mm")))
sketch1.addConstraint(Sketcher.Constraint("DistanceX", 17, 3, -1, 1, Q("62.394014 mm")))
sketch1.addConstraint(Sketcher.Constraint("DistanceY", 17, 3, -1, 1, Q("113.806315 mm")))
sketch1.addConstraint(Sketcher.Constraint("DistanceX", 20, 3, -1, 1, Q("39.294014 mm")))
sketch1.addConstraint(Sketcher.Constraint("DistanceY", 22, 3, -1, 1, Q("83.706315 mm")))
sketch1.addConstraint(Sketcher.Constraint("DistanceX", 27, 3, -1, 1, Q("37.344014 mm")))
sketch1.addConstraint(Sketcher.Constraint("DistanceX", 29, 3, -1, 1, Q("25.144014 mm")))
sketch1.addConstraint(Sketcher.Constraint("DistanceY", 29, 3, -1, 1, Q("132.056315 mm")))
sketch1.addConstraint(Sketcher.Constraint("DistanceX", 32, 3, -1, 1, Q("32.344014 mm")))
sketch1.addConstraint(Sketcher.Constraint("DistanceX", -1, 1, 35, 3, Q("13.655986 mm")))
sketch1.addConstraint(Sketcher.Constraint("DistanceX", -1, 1, 36, 3, Q("59.655986 mm")))
sketch1.addConstraint(Sketcher.Constraint("DistanceY", 36, 3, -1, 1, Q("139.256315 mm")))
sketch1.addConstraint(Sketcher.Constraint("DistanceX", -1, 1, 38, 3, Q("52.455986 mm")))
sketch1.addConstraint(Sketcher.Constraint("DistanceY", 40, 3, -1, 1, Q("15.056315 mm")))
sketch1.addConstraint(Sketcher.Constraint("DistanceX", 43, 3, -1, 1, Q("62.644014 mm")))
sketch1.addConstraint(Sketcher.Constraint("DistanceY", 43, 3, -1, 1, Q("27.456315 mm")))
sketch1.addConstraint(Sketcher.Constraint("DistanceX", 46, 3, -1, 1, Q("77.144014 mm")))
sketch1.addConstraint(Sketcher.Constraint("DistanceX", 48, 3, -1, 1, Q("39.544014 mm")))
sketch1.addConstraint(Sketcher.Constraint("DistanceY", 50, 3, -1, 1, Q("14.456315 mm")))
sketch1.addConstraint(Sketcher.Constraint("DistanceX", -1, 1, 0, 2, Q("64.655986 mm")))
sketch1.addConstraint(Sketcher.Constraint("DistanceY", 0, 2, -1, 1, Q("154.256315 mm")))
pad1 = body.newObject("PartDesign::Pad", "Pad")
pad1.Profile = sketch1
pad1.Length = 3

doc.recompute()
